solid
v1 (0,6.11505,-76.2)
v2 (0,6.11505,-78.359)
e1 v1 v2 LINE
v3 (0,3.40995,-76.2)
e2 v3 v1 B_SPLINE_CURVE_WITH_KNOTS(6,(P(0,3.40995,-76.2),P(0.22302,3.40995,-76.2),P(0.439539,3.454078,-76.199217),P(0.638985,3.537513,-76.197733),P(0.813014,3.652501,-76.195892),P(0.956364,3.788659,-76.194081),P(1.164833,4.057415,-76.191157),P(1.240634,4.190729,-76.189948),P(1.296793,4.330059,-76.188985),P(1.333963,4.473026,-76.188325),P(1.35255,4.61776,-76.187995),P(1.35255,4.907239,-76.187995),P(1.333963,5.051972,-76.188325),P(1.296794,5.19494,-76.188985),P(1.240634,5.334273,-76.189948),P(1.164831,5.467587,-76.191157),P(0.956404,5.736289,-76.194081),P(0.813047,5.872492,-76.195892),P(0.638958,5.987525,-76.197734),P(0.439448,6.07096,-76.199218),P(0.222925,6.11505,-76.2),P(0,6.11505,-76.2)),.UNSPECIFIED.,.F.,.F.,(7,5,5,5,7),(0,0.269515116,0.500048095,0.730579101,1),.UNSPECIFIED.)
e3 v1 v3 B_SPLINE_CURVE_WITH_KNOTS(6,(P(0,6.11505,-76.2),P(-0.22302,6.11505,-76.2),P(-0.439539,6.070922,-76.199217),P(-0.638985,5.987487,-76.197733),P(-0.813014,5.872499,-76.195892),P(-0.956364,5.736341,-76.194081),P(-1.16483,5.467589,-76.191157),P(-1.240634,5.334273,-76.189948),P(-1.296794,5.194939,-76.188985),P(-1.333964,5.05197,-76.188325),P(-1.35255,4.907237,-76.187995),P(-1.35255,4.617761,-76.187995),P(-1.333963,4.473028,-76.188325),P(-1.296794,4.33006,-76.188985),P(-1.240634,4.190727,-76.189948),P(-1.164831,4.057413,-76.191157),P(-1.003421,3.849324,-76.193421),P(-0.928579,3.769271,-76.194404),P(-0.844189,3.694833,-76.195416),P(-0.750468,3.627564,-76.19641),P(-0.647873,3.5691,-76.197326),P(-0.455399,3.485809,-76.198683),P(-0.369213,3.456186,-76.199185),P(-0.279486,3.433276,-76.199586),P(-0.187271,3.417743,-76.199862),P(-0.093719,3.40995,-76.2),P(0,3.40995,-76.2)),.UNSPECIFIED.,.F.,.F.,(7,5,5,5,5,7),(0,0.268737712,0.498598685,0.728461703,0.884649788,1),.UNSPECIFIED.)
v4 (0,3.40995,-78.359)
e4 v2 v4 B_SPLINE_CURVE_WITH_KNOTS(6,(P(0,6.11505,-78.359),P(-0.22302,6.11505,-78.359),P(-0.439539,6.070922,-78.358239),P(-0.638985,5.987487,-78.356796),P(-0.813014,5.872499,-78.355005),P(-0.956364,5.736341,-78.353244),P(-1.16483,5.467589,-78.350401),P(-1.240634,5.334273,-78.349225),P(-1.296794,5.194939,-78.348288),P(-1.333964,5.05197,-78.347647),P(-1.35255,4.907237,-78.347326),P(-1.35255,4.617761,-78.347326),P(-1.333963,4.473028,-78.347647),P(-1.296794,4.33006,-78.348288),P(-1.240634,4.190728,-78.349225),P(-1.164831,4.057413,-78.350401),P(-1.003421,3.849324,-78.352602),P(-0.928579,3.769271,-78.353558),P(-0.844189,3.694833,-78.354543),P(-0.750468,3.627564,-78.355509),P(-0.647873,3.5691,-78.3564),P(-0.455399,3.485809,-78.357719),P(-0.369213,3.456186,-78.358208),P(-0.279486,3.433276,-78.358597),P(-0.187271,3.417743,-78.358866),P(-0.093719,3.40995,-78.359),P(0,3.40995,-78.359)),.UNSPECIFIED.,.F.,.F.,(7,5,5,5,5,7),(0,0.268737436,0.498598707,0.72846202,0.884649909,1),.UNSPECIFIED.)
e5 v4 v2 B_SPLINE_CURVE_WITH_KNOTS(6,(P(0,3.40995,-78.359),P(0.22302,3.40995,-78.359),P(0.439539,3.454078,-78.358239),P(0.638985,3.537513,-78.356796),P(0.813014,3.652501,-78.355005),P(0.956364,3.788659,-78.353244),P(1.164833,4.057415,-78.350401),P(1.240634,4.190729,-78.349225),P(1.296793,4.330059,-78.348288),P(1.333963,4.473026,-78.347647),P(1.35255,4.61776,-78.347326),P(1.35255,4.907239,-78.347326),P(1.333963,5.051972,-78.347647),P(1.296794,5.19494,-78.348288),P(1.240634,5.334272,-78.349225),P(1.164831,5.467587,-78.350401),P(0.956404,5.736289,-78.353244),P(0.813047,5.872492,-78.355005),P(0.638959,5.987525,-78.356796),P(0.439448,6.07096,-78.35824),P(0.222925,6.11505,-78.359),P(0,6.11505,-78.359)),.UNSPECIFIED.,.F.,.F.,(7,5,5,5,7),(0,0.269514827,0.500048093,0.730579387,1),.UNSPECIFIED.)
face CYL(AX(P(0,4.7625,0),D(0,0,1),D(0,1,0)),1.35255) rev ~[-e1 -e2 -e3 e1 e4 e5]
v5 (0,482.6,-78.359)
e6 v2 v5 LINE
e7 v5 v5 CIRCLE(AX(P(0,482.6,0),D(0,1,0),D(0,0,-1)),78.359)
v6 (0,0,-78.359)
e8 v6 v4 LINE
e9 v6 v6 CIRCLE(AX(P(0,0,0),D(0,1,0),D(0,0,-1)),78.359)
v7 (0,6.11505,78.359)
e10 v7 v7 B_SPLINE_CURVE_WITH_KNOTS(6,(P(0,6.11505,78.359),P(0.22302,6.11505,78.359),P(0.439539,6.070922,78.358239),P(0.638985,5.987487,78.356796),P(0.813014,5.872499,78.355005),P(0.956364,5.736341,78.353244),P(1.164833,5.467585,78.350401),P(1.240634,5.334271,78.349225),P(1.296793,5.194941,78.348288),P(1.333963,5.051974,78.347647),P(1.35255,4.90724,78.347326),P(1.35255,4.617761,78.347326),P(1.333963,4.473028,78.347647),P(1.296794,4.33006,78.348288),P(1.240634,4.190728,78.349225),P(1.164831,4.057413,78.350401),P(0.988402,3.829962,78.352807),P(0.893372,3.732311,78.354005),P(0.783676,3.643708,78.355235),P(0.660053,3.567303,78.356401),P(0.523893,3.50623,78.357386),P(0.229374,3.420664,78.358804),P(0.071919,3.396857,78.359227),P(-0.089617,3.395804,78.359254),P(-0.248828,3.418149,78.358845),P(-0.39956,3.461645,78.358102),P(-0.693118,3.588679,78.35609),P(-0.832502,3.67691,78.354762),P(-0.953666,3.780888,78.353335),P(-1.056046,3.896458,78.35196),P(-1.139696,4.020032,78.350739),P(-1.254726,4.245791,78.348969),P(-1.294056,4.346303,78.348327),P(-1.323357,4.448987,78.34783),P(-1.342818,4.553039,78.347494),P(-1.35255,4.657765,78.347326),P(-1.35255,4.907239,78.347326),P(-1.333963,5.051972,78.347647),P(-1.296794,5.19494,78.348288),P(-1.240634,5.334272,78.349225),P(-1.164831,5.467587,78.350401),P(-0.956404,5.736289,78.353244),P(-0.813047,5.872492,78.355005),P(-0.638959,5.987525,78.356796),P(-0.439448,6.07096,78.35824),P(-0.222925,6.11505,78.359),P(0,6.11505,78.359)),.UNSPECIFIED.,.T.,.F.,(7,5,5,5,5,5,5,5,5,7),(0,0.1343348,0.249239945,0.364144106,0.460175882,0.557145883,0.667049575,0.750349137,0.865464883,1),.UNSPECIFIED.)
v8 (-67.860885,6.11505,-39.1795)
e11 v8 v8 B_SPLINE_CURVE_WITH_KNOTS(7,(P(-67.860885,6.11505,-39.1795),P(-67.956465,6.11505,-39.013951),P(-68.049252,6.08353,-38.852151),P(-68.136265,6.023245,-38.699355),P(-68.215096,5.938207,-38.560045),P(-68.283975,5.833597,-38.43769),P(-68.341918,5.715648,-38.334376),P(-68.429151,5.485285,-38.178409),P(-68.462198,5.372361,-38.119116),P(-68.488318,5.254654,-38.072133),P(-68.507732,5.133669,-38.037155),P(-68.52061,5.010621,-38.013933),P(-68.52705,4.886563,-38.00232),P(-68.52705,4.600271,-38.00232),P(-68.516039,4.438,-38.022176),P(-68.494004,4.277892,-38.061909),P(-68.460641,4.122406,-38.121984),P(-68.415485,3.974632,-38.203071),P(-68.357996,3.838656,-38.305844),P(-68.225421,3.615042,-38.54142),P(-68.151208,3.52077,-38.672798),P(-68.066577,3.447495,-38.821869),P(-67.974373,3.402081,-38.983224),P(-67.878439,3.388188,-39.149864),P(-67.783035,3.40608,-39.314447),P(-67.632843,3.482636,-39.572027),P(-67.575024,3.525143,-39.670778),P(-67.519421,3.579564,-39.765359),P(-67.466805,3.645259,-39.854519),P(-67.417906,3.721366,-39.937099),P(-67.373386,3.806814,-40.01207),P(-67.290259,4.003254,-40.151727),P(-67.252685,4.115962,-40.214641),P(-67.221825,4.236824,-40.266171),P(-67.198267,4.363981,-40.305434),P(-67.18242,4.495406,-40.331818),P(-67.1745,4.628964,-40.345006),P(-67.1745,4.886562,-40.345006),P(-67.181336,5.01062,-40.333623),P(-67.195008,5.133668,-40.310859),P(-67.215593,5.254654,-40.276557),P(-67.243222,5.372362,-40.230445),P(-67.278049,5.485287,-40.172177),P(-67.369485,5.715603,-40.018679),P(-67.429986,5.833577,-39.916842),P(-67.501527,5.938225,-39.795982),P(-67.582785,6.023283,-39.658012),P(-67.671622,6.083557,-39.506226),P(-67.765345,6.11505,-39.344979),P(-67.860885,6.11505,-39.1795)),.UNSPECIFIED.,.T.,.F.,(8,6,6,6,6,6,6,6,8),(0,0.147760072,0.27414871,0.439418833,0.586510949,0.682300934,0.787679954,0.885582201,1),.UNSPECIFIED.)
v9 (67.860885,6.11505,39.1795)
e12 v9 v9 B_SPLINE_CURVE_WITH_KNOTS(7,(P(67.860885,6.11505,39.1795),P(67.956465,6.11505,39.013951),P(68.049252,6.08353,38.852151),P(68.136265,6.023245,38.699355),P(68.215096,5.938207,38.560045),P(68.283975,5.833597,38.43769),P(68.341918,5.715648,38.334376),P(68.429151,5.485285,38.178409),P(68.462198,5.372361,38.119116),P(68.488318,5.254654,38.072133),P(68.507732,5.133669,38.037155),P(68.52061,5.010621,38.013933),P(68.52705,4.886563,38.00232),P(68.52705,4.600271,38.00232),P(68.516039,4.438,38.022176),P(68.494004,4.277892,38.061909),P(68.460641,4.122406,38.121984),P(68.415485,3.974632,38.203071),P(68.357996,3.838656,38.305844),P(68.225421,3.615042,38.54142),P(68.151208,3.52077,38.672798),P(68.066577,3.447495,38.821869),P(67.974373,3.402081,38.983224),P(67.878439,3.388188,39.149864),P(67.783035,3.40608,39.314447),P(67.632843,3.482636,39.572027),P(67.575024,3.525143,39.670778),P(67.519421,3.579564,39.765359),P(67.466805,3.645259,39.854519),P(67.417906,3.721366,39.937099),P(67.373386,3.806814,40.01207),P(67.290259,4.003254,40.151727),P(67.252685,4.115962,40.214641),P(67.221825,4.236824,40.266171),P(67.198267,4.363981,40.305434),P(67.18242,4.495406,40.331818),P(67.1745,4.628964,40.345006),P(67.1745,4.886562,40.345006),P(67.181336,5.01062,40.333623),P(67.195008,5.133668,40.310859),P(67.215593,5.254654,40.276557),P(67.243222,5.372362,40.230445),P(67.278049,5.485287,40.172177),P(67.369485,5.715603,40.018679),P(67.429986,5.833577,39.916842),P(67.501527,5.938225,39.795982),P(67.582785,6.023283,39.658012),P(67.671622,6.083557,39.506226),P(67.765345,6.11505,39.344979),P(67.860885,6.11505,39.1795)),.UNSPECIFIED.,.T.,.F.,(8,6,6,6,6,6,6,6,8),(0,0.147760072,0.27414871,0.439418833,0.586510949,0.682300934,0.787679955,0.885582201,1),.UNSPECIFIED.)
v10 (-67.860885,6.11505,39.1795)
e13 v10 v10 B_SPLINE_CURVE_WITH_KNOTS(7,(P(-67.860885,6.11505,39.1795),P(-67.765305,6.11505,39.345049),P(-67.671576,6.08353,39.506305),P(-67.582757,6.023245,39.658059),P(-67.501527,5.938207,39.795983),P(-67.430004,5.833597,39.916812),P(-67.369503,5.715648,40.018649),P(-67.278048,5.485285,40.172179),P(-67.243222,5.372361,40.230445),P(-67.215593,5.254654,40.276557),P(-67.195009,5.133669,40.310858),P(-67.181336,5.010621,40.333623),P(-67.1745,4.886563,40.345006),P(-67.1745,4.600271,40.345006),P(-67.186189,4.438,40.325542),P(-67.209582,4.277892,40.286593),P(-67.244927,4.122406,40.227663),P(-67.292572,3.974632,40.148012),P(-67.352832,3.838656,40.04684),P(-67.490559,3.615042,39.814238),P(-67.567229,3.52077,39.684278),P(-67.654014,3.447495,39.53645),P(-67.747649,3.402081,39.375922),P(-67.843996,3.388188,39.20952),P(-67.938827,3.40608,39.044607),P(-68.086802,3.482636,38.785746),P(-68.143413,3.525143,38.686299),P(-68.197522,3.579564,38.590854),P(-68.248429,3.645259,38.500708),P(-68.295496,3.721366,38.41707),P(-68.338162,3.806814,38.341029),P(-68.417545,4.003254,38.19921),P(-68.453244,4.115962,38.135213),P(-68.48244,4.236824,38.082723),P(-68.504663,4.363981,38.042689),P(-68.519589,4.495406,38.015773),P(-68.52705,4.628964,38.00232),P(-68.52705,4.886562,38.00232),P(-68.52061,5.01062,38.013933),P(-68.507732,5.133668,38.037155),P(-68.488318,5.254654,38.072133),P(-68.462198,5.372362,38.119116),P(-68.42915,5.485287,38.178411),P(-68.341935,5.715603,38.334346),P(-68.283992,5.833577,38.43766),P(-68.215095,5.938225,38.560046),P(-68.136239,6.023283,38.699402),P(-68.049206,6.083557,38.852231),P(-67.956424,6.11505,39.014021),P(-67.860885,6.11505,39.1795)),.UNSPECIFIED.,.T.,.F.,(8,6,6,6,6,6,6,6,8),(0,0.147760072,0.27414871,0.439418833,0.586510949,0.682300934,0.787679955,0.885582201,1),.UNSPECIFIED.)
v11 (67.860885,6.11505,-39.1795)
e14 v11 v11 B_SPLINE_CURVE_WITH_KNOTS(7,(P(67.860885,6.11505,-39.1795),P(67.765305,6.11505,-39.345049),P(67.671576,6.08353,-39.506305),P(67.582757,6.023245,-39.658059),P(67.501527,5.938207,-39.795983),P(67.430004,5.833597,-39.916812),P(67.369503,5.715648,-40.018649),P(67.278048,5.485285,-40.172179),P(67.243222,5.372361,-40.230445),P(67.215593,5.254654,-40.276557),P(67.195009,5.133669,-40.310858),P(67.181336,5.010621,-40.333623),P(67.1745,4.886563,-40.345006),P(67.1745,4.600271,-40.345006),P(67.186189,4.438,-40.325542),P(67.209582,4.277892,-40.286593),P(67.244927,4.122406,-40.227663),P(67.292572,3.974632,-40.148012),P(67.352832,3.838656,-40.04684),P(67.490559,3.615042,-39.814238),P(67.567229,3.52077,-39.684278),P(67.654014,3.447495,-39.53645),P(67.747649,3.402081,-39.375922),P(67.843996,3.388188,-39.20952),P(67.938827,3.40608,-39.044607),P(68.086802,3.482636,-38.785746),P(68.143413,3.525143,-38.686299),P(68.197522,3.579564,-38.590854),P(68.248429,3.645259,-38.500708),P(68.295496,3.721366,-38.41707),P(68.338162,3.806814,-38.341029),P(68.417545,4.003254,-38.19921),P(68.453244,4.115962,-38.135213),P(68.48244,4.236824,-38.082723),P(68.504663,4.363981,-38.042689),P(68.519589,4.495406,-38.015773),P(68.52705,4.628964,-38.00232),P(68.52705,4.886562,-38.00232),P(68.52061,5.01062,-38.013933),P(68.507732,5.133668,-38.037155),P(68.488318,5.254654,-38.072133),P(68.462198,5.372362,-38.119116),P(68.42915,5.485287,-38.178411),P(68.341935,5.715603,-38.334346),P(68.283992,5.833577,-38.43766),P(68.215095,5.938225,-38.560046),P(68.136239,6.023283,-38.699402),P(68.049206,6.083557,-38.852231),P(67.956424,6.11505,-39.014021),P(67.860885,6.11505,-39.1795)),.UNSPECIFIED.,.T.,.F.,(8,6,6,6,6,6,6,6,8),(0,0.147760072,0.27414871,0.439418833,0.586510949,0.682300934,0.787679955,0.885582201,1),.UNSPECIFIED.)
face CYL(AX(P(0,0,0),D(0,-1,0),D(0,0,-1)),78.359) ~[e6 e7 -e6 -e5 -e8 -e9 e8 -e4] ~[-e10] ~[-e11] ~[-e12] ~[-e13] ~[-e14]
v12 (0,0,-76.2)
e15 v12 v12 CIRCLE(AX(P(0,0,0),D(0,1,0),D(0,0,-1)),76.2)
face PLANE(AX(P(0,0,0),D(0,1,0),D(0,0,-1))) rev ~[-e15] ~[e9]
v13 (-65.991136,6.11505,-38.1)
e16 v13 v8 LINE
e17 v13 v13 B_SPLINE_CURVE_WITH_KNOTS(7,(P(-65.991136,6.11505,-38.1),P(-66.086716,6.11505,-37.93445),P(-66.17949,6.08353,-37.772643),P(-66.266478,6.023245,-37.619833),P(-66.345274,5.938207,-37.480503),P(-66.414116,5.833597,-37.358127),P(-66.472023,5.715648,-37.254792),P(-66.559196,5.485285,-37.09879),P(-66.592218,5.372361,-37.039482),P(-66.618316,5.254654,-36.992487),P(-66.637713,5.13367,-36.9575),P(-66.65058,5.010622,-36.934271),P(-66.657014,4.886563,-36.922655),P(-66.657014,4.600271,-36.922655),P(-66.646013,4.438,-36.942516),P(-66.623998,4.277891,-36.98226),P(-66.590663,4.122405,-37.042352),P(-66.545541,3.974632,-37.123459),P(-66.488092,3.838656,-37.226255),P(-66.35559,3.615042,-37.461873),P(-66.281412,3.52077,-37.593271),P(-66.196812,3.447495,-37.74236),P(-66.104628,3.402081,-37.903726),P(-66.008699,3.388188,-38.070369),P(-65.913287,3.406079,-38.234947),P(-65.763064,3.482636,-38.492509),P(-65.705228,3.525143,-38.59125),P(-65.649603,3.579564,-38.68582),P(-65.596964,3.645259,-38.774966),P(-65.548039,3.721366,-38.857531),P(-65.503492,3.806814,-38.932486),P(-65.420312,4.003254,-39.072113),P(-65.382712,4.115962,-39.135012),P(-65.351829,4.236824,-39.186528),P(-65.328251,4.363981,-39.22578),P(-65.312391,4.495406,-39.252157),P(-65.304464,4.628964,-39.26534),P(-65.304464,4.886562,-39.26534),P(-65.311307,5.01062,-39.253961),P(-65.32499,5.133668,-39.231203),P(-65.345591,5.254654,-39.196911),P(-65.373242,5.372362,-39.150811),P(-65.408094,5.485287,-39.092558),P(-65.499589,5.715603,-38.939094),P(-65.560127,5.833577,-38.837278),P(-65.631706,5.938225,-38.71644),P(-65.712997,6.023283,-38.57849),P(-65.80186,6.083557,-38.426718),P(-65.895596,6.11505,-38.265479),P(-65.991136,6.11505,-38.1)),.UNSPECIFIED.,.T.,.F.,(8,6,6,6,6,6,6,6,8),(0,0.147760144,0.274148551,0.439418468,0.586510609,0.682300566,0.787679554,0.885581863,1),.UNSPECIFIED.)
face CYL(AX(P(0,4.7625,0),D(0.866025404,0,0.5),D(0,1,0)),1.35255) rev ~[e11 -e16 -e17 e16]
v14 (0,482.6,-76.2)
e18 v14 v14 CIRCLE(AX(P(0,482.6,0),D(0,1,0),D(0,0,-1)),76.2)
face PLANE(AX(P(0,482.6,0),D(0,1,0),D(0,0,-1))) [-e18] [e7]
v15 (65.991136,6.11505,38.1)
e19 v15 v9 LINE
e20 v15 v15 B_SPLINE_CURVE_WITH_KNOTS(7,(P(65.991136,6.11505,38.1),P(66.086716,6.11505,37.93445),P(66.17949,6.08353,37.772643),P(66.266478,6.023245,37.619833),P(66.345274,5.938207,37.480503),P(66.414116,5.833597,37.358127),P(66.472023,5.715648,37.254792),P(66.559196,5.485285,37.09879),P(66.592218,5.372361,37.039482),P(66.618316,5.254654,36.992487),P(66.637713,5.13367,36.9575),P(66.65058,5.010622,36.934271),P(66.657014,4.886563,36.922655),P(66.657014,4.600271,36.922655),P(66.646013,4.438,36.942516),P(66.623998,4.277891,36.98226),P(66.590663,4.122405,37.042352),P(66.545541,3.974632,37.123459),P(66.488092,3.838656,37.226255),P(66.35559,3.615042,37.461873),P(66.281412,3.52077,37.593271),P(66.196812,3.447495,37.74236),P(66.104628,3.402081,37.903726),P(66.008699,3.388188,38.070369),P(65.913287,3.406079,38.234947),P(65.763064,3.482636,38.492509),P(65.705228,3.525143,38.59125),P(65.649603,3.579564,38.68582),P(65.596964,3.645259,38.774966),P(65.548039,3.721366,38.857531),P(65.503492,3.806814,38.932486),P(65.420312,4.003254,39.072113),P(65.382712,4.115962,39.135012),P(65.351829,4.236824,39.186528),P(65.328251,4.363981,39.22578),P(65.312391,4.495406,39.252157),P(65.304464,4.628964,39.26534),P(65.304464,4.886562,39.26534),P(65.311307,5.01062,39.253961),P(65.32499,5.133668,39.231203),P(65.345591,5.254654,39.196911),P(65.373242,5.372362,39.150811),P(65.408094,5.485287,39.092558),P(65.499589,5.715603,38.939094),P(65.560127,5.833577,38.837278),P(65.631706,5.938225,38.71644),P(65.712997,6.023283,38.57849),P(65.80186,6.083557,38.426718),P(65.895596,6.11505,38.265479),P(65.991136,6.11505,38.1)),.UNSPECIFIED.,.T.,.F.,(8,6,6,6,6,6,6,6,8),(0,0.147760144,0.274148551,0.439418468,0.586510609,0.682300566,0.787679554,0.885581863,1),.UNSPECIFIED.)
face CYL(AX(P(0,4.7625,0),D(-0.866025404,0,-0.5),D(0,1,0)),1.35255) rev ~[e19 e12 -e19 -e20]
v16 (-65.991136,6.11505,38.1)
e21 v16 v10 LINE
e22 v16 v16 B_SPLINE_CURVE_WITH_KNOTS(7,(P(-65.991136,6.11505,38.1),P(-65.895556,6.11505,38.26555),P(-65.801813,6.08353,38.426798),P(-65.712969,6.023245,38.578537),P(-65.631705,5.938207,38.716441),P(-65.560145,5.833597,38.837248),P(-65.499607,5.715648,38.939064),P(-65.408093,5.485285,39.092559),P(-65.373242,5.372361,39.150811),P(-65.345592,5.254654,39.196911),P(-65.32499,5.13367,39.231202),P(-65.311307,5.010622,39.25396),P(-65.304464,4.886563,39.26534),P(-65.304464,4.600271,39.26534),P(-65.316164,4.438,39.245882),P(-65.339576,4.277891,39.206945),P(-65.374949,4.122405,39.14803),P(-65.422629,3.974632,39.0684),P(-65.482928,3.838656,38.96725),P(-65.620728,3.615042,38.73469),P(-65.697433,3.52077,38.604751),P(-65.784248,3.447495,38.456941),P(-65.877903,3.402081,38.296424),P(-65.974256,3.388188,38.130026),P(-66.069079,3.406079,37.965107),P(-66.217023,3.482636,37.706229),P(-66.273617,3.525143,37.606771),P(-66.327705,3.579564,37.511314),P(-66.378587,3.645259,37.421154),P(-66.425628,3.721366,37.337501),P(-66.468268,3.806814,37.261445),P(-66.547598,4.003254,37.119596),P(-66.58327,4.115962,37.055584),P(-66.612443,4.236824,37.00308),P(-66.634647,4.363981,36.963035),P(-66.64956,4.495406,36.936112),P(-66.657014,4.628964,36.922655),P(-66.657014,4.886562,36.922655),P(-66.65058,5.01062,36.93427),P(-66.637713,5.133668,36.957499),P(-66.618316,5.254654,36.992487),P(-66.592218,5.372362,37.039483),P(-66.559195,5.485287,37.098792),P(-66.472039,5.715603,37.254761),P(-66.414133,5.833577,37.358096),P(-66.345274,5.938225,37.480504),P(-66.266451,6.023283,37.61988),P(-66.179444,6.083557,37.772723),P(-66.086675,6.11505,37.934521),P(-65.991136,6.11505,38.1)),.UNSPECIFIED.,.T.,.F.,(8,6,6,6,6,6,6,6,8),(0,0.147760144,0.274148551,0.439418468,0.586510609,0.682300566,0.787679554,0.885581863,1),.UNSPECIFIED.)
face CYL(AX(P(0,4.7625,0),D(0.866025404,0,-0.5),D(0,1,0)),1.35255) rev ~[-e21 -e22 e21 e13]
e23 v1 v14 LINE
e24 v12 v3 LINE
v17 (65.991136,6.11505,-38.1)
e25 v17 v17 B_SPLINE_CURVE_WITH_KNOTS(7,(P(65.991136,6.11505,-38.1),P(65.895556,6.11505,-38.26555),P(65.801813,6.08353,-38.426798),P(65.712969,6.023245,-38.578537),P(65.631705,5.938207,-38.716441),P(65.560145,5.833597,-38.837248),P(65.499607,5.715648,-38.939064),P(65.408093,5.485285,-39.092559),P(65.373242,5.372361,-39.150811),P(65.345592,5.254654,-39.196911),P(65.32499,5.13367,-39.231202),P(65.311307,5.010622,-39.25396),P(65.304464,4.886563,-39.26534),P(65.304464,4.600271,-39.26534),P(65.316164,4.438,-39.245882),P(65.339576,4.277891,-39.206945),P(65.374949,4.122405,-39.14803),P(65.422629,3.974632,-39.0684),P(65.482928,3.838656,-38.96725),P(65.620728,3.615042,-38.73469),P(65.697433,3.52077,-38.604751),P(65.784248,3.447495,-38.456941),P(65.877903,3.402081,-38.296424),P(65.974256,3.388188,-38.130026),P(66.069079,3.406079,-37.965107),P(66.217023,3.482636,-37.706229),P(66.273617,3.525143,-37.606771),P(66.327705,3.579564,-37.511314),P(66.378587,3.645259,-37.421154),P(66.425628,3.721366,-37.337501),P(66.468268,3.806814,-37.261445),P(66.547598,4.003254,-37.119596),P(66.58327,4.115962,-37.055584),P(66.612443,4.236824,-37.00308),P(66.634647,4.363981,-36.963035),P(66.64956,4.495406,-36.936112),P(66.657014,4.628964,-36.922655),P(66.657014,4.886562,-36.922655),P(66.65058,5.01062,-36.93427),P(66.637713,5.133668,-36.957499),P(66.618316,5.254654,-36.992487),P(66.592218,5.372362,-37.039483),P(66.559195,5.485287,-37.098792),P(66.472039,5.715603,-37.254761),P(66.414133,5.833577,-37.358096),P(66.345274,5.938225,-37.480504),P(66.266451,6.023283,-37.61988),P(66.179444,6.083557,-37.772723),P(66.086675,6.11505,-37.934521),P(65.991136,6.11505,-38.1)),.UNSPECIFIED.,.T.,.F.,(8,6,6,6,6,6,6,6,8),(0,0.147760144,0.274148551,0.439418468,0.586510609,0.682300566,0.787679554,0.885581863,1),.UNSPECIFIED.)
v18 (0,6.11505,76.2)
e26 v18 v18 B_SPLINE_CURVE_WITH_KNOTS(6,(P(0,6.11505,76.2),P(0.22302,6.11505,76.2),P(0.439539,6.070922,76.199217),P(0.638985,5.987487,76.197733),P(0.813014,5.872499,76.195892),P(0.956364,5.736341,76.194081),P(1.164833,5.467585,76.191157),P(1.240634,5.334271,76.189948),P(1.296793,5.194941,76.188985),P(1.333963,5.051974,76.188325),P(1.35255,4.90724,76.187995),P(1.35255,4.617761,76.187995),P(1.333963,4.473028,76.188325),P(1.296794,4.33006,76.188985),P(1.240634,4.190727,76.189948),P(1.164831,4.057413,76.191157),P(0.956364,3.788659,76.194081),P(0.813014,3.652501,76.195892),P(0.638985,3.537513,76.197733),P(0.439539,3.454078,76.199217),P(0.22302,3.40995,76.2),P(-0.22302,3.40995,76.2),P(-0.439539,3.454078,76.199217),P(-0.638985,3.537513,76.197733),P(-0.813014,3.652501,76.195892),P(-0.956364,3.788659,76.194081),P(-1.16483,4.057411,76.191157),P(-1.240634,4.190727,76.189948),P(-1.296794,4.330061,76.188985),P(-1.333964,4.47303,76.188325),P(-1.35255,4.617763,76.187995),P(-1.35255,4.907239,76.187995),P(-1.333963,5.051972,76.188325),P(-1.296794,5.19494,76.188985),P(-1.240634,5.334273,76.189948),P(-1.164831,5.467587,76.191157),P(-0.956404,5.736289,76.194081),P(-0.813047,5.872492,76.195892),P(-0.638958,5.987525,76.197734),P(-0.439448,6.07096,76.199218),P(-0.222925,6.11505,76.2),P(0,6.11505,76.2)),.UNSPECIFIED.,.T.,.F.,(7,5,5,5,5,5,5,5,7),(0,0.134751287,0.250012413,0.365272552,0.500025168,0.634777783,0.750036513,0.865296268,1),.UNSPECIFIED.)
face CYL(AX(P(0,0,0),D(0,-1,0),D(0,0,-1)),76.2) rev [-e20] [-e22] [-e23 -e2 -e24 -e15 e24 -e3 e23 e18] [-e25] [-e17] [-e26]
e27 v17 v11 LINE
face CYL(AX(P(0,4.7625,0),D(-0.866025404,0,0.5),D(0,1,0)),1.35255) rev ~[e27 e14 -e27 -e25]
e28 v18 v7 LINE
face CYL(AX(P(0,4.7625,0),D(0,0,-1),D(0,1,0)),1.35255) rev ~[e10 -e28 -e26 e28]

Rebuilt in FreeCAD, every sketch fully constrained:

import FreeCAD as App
import Part
import Sketcher

V = App.Vector
Q = App.Units.Quantity

doc = App.newDocument("Part")
params = doc.addObject("Spreadsheet::Sheet", "Params")
for row, (alias, value) in enumerate([
    ("sketch1_diameter", "6 in"),
    ("sketch1_diameter2", "6.17 in"),
    ("pad1_length", "19 in"),
], start=1):
    params.set(f"A{row}", alias)
    params.set(f"B{row}", "=" + value)
    params.setAlias(f"B{row}", alias)

body = doc.addObject("PartDesign::Body", "Body")

# Sketch on XZ plane
sketch1 = doc.addObject("Sketcher::SketchObject", "Sketch")
body.addObject(sketch1)
sketch1.AttachmentSupport = (doc.XZ_Plane, [""])
sketch1.MapMode = "FlatFace"
sketch1.addGeometry([
    Part.Circle(V(0, 0, 0), V(0, 0, 1), 78),
    Part.Circle(V(0, 0, 0), V(0, 0, 1), 76),
], False)
sketch1.addConstraint([
    Sketcher.Constraint("Coincident", 0, 3, -1, 1),
    Sketcher.Constraint("Coincident", 1, 3, -1, 1),
    Sketcher.Constraint("Diameter", 1, Q("6 in")),
    Sketcher.Constraint("Diameter", 0, Q("6.17 in")),
])
sketch1.setExpression("Constraints[2]", "Params.sketch1_diameter")
sketch1.setExpression("Constraints[3]", "Params.sketch1_diameter2")
pad1 = doc.addObject("PartDesign::Pad", "Pad")
body.addObject(pad1)
pad1.Profile = sketch1
pad1.setExpression("Length", "Params.pad1_length")
pad1.Reversed = True

# Sketch on XY plane
sketch2 = doc.addObject("Sketcher::SketchObject", "Sketch001")
body.addObject(sketch2)
sketch2.AttachmentSupport = (doc.XY_Plane, [""])
sketch2.MapMode = "FlatFace"
sketch2.addGeometry(Part.Circle(V(0, 4.8, 0), V(0, 0, 1), 1.4), False)
sketch2.addConstraint([
    Sketcher.Constraint("PointOnObject", 0, 3, -2),
    Sketcher.Constraint("Diameter", 0, Q("0.1065 in")),
    Sketcher.Constraint("DistanceY", -1, 1, 0, 3, Q("0.1875 in")),
])
pocket1 = doc.addObject("PartDesign::Pocket", "Pocket")
body.addObject(pocket1)
pocket1.Profile = sketch2
pocket1.Type = "ThroughAll"
doc.recompute()

polarpattern = doc.addObject("PartDesign::PolarPattern", "PolarPattern")
body.addObject(polarpattern)
polarpattern.Originals = [pocket1]
polarpattern.Axis = (doc.Y_Axis, [""])
polarpattern.Angle = 360
polarpattern.Occurrences = 6
body.Tip = polarpattern

doc.recompute()
